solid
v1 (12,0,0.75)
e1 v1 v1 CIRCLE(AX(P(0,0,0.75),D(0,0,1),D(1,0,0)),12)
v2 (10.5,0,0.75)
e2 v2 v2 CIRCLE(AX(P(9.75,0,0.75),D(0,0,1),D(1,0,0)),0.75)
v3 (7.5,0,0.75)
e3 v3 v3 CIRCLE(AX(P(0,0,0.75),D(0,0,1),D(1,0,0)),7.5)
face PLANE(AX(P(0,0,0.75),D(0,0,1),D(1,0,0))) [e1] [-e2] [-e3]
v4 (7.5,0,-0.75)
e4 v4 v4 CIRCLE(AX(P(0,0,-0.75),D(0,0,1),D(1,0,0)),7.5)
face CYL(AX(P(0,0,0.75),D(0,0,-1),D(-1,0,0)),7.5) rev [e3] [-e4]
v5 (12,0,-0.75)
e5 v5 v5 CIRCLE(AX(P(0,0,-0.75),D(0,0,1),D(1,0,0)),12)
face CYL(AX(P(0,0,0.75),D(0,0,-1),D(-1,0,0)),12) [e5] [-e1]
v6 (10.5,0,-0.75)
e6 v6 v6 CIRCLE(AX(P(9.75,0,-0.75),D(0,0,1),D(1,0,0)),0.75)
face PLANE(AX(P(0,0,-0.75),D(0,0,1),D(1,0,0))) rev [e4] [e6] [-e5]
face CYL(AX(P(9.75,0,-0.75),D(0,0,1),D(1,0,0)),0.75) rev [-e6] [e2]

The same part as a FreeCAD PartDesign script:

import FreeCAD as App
import Part
import Sketcher
from FreeCAD import Vector
Q = App.Units.Quantity

doc = App.newDocument("Part")
params = doc.addObject("Spreadsheet::Sheet", "Params")
for row, (alias, value) in enumerate([
    ("sketch1_diameter", "24 mm"),
    ("sketch1_diameter2", "15 mm"),
    ("pad1_length", "1.5 mm"),
    ("sketch2_diameter", "1.5 mm"),
], start=1):
    params.set(f"A{row}", alias)
    params.set(f"B{row}", "=" + value)
    params.setAlias(f"B{row}", alias)

body = doc.addObject("PartDesign::Body", "Body")

# Sketch on XY plane
sketch1 = doc.addObject("Sketcher::SketchObject", "Sketch")
body.addObject(sketch1)
sketch1.AttachmentSupport = (doc.XY_Plane, [""])
sketch1.MapMode = "FlatFace"
sketch1.addGeometry([
    Part.Circle(Vector(0, 0, 0), Vector(0, 0, 1), 12),
    Part.Circle(Vector(0, 0, 0), Vector(0, 0, 1), 8),
], False)
sketch1.addConstraint([
    Sketcher.Constraint("Coincident", 0, 3, -1, 1),
    Sketcher.Constraint("Coincident", 1, 3, -1, 1),
    Sketcher.Constraint("Diameter", 0, Q("24 mm")),
    Sketcher.Constraint("Diameter", 1, Q("15 mm")),
])
sketch1.setExpression("Constraints[2]", "Params.sketch1_diameter")
sketch1.setExpression("Constraints[3]", "Params.sketch1_diameter2")
pad1 = doc.addObject("PartDesign::Pad", "Pad")
body.addObject(pad1)
pad1.Profile = sketch1
pad1.setExpression("Length", "Params.pad1_length")
pad1.Midplane = True

# Sketch on XY plane
sketch2 = doc.addObject("Sketcher::SketchObject", "Sketch001")
body.addObject(sketch2)
sketch2.AttachmentSupport = (doc.XY_Plane, [""])
sketch2.MapMode = "FlatFace"
sketch2.addGeometry(Part.Circle(Vector(9.8, 0, 0), Vector(0, 0, 1), 0.8), False)
sketch2.addConstraint([
    Sketcher.Constraint("PointOnObject", 0, 3, -1),
    Sketcher.Constraint("Diameter", 0, Q("1.5 mm")),
    Sketcher.Constraint("DistanceX", -1, 1, 0, 3, Q("9.75 mm")),
])
sketch2.setExpression("Constraints[1]", "Params.sketch2_diameter")
pocket1 = doc.addObject("PartDesign::Pocket", "Pocket")
body.addObject(pocket1)
pocket1.Profile = sketch2
pocket1.Type = "ThroughAll"
pocket1.Midplane = True

doc.recompute()
